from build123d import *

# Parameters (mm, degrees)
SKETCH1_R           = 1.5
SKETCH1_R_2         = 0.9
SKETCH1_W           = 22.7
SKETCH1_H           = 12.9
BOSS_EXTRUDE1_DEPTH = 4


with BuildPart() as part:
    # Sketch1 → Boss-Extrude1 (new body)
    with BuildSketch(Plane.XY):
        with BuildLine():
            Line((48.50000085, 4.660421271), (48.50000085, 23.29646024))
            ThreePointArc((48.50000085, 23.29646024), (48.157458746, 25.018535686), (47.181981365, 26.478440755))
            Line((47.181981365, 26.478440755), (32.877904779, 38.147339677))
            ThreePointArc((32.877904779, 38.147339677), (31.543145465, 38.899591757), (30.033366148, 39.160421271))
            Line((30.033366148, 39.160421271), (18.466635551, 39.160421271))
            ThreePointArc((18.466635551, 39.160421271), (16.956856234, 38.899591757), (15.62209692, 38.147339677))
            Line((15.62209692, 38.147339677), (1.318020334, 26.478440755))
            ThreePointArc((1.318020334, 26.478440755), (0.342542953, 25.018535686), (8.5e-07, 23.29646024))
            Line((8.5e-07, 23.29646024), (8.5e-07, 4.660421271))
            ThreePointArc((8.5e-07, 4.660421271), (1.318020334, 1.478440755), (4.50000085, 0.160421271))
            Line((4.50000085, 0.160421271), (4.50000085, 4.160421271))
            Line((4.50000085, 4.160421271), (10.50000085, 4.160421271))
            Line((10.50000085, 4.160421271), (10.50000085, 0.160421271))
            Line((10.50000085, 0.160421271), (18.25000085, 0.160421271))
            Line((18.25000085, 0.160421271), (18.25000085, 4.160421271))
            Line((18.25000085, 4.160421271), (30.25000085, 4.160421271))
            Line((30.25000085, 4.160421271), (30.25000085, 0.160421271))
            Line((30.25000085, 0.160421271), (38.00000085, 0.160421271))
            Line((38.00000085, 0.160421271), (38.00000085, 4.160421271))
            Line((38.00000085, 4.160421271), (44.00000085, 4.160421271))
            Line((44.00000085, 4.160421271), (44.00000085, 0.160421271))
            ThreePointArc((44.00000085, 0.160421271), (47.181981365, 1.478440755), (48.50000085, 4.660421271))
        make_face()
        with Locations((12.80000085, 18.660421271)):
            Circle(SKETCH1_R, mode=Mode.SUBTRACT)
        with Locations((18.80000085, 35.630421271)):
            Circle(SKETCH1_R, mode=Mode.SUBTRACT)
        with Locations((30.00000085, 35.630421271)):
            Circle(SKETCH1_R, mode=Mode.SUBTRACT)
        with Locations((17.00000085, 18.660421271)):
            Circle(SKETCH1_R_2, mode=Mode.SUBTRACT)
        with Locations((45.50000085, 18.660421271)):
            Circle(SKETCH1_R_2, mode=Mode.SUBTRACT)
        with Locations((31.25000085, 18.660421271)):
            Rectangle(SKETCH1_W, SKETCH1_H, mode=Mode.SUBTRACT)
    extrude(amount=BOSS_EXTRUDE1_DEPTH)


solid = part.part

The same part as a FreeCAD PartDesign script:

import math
import FreeCAD as App
import Part
import Sketcher


def add_polygon(sketch, points):
    """Adds a closed chain of lines whose ends are joined by coincident constraints."""
    first, n = sketch.GeometryCount, len(points)
    for a, b in zip(points, points[1:] + points[:1]):
        sketch.addGeometry(Part.LineSegment(App.Vector(*a, 0), App.Vector(*b, 0)), False)
    for i in range(n):
        sketch.addConstraint(Sketcher.Constraint("Coincident", first + i, 2, first + (i + 1) % n, 1))

doc = App.newDocument("Part")
body = doc.addObject("PartDesign::Body", "Body")

sketch1 = body.newObject("Sketcher::SketchObject", "Sketch")
sketch1.AttachmentSupport = (doc.getObject("XY_Plane"), [""])
sketch1.MapMode = "FlatFace"
sketch1.addGeometry(Part.LineSegment(App.Vector(48.5, 4.7, 0), App.Vector(48.5, 23.3, 0)), False)
sketch1.addGeometry(Part.ArcOfCircle(Part.Circle(App.Vector(44, 23.3, 0), App.Vector(0, 0, 1), 4.5), math.radians(0), math.radians(45)), False)
sketch1.addGeometry(Part.LineSegment(App.Vector(47.2, 26.5, 0), App.Vector(32.9, 38.1, 0)), False)
sketch1.addGeometry(Part.ArcOfCircle(Part.Circle(App.Vector(30, 34.7, 0), App.Vector(0, 0, 1), 4.5), math.radians(51), math.radians(90)), False)
sketch1.addGeometry(Part.LineSegment(App.Vector(30, 39.2, 0), App.Vector(18.5, 39.2, 0)), False)
sketch1.addGeometry(Part.ArcOfCircle(Part.Circle(App.Vector(18.5, 34.7, 0), App.Vector(0, 0, 1), 4.5), math.radians(90), math.radians(129)), False)
sketch1.addGeometry(Part.LineSegment(App.Vector(15.6, 38.1, 0), App.Vector(1.3, 26.5, 0)), False)
sketch1.addGeometry(Part.ArcOfCircle(Part.Circle(App.Vector(4.5, 23.3, 0), App.Vector(0, 0, 1), 4.5), math.radians(135), math.radians(180)), False)
sketch1.addGeometry(Part.LineSegment(App.Vector(0, 23.3, 0), App.Vector(0, 4.7, 0)), False)
sketch1.addGeometry(Part.ArcOfCircle(Part.Circle(App.Vector(4.5, 4.7, 0), App.Vector(0, 0, 1), 4.5), math.radians(180), math.radians(270)), False)
sketch1.addGeometry(Part.LineSegment(App.Vector(4.5, 0.2, 0), App.Vector(4.5, 4.2, 0)), False)
sketch1.addGeometry(Part.LineSegment(App.Vector(4.5, 4.2, 0), App.Vector(10.5, 4.2, 0)), False)
sketch1.addGeometry(Part.LineSegment(App.Vector(10.5, 4.2, 0), App.Vector(10.5, 0.2, 0)), False)
sketch1.addGeometry(Part.LineSegment(App.Vector(10.5, 0.2, 0), App.Vector(18.3, 0.2, 0)), False)
sketch1.addGeometry(Part.LineSegment(App.Vector(18.3, 0.2, 0), App.Vector(18.3, 4.2, 0)), False)
sketch1.addGeometry(Part.LineSegment(App.Vector(18.3, 4.2, 0), App.Vector(30.3, 4.2, 0)), False)
sketch1.addGeometry(Part.LineSegment(App.Vector(30.3, 4.2, 0), App.Vector(30.3, 0.2, 0)), False)
sketch1.addGeometry(Part.LineSegment(App.Vector(30.3, 0.2, 0), App.Vector(38, 0.2, 0)), False)
sketch1.addGeometry(Part.LineSegment(App.Vector(38, 0.2, 0), App.Vector(38, 4.2, 0)), False)
sketch1.addGeometry(Part.LineSegment(App.Vector(38, 4.2, 0), App.Vector(44, 4.2, 0)), False)
sketch1.addGeometry(Part.LineSegment(App.Vector(44, 4.2, 0), App.Vector(44, 0.2, 0)), False)
sketch1.addGeometry(Part.ArcOfCircle(Part.Circle(App.Vector(44, 4.7, 0), App.Vector(0, 0, 1), 4.5), math.radians(-90), math.radians(0)), False)
sketch1.addGeometry(Part.Circle(App.Vector(12.8, 18.7, 0), App.Vector(0, 0, 1), 1.5), False)
sketch1.addGeometry(Part.Circle(App.Vector(17, 18.7, 0), App.Vector(0, 0, 1), 0.9), False)
add_polygon(sketch1, [(42.6, 12.2), (19.9, 12.2), (19.9, 25.1), (42.6, 25.1)])
sketch1.addGeometry(Part.Circle(App.Vector(45.5, 18.7, 0), App.Vector(0, 0, 1), 0.9), False)
sketch1.addGeometry(Part.Circle(App.Vector(18.8, 35.6, 0), App.Vector(0, 0, 1), 1.5), False)
sketch1.addGeometry(Part.Circle(App.Vector(30, 35.6, 0), App.Vector(0, 0, 1), 1.5), False)
sketch1.addConstraint(Sketcher.Constraint("Tangent", 0, 2, 1, 1))
sketch1.addConstraint(Sketcher.Constraint("Coincident", 1, 2, 2, 1))
sketch1.addConstraint(Sketcher.Constraint("Tangent", 2, 2, 3, 1))
sketch1.addConstraint(Sketcher.Constraint("Tangent", 3, 2, 4, 1))
sketch1.addConstraint(Sketcher.Constraint("Tangent", 4, 2, 5, 1))
sketch1.addConstraint(Sketcher.Constraint("Tangent", 5, 2, 6, 1))
sketch1.addConstraint(Sketcher.Constraint("Coincident", 6, 2, 7, 1))
sketch1.addConstraint(Sketcher.Constraint("Tangent", 7, 2, 8, 1))
sketch1.addConstraint(Sketcher.Constraint("Tangent", 8, 2, 9, 1))
sketch1.addConstraint(Sketcher.Constraint("Coincident", 9, 2, 10, 1))
sketch1.addConstraint(Sketcher.Constraint("Coincident", 10, 2, 11, 1))
sketch1.addConstraint(Sketcher.Constraint("Coincident", 11, 2, 12, 1))
sketch1.addConstraint(Sketcher.Constraint("Coincident", 12, 2, 13, 1))
sketch1.addConstraint(Sketcher.Constraint("Coincident", 13, 2, 14, 1))
sketch1.addConstraint(Sketcher.Constraint("Coincident", 14, 2, 15, 1))
sketch1.addConstraint(Sketcher.Constraint("Coincident", 15, 2, 16, 1))
sketch1.addConstraint(Sketcher.Constraint("Coincident", 16, 2, 17, 1))
sketch1.addConstraint(Sketcher.Constraint("Coincident", 17, 2, 18, 1))
sketch1.addConstraint(Sketcher.Constraint("Coincident", 18, 2, 19, 1))
sketch1.addConstraint(Sketcher.Constraint("Coincident", 19, 2, 20, 1))
sketch1.addConstraint(Sketcher.Constraint("Coincident", 20, 2, 21, 1))
sketch1.addConstraint(Sketcher.Constraint("Tangent", 21, 2, 0, 1))
sketch1.addConstraint(Sketcher.Constraint("Vertical", 0))
sketch1.addConstraint(Sketcher.Constraint("Horizontal", 4))
sketch1.addConstraint(Sketcher.Constraint("Vertical", 8))
sketch1.addConstraint(Sketcher.Constraint("Vertical", 10))
sketch1.addConstraint(Sketcher.Constraint("Horizontal", 11))
sketch1.addConstraint(Sketcher.Constraint("Vertical", 12))
sketch1.addConstraint(Sketcher.Constraint("Horizontal", 13))
sketch1.addConstraint(Sketcher.Constraint("Vertical", 14))
sketch1.addConstraint(Sketcher.Constraint("Horizontal", 15))
sketch1.addConstraint(Sketcher.Constraint("Vertical", 16))
sketch1.addConstraint(Sketcher.Constraint("Horizontal", 17))
sketch1.addConstraint(Sketcher.Constraint("Vertical", 18))
sketch1.addConstraint(Sketcher.Constraint("Horizontal", 19))
sketch1.addConstraint(Sketcher.Constraint("Vertical", 20))
sketch1.addConstraint(Sketcher.Constraint("Horizontal", 24))
sketch1.addConstraint(Sketcher.Constraint("Vertical", 25))
sketch1.addConstraint(Sketcher.Constraint("Horizontal", 26))
sketch1.addConstraint(Sketcher.Constraint("Vertical", 27))
sketch1.addConstraint(Sketcher.Constraint("Equal", 1, 3))
sketch1.addConstraint(Sketcher.Constraint("Equal", 3, 5))
sketch1.addConstraint(Sketcher.Constraint("Equal", 5, 7))
sketch1.addConstraint(Sketcher.Constraint("Equal", 7, 9))
sketch1.addConstraint(Sketcher.Constraint("Equal", 9, 21))
sketch1.addConstraint(Sketcher.Constraint("Equal", 23, 28))
sketch1.addConstraint(Sketcher.Constraint("Equal", 22, 29))
sketch1.addConstraint(Sketcher.Constraint("Equal", 29, 30))
sketch1.addConstraint(Sketcher.Constraint("PointOnObject", 7, 2, -2))
sketch1.addConstraint(Sketcher.Constraint("Horizontal", 1, 3, 7, 3))
sketch1.addConstraint(Sketcher.Constraint("Horizontal", 9, 3, 21, 3))
sketch1.addConstraint(Sketcher.Constraint("Horizontal", 22, 3, 23, 3))
sketch1.addConstraint(Sketcher.Constraint("Horizontal", 23, 3, 28, 3))
sketch1.addConstraint(Sketcher.Constraint("Horizontal", 29, 3, 30, 3))
sketch1.addConstraint(Sketcher.Constraint("Horizontal", 2, 2, 5, 2))
sketch1.addConstraint(Sketcher.Constraint("Horizontal", 1, 2, 6, 2))
sketch1.addConstraint(Sketcher.Constraint("Horizontal", 9, 2, 12, 2))
sketch1.addConstraint(Sketcher.Constraint("Horizontal", 11, 2, 14, 2))
sketch1.addConstraint(Sketcher.Constraint("Horizontal", 13, 2, 16, 2))
sketch1.addConstraint(Sketcher.Constraint("Horizontal", 15, 2, 18, 2))
sketch1.addConstraint(Sketcher.Constraint("Vertical", 7, 3, 9, 2))
sketch1.addConstraint(Sketcher.Constraint("Vertical", 21, 3, 19, 2))
sketch1.addConstraint(Sketcher.Constraint("Equal", 13, 17))
sketch1.addConstraint(Sketcher.Constraint("Equal", 11, 19))
sketch1.addConstraint(Sketcher.Constraint("Diameter", 22, 3.0))
sketch1.addConstraint(Sketcher.Constraint("Diameter", 23, 1.8))
sketch1.addConstraint(Sketcher.Constraint("Radius", 1, 4.5))
sketch1.addConstraint(Sketcher.Constraint("DistanceX", 11, 1, 11, 2, 6.0))
sketch1.addConstraint(Sketcher.Constraint("DistanceX", 15, 1, 15, 2, 12.0))
sketch1.addConstraint(Sketcher.Constraint("DistanceY", 10, 1, 10, 2, 4.0))
sketch1.addConstraint(Sketcher.Constraint("DistanceX", 24, 2, 24, 1, 22.7))
sketch1.addConstraint(Sketcher.Constraint("DistanceY", 25, 1, 25, 2, 12.9))
sketch1.addConstraint(Sketcher.Constraint("DistanceX", -1, 1, 1, 3, 44.000001))
sketch1.addConstraint(Sketcher.Constraint("DistanceX", -1, 1, 23, 3, 17.000001))
sketch1.addConstraint(Sketcher.Constraint("DistanceX", -1, 1, 30, 3, 30.000001))
sketch1.addConstraint(Sketcher.Constraint("DistanceY", 9, 3, 5, 3, 30.0))
sketch1.addConstraint(Sketcher.Constraint("DistanceY", 9, 3, 22, 3, 14.0))
sketch1.addConstraint(Sketcher.Constraint("DistanceX", 22, 3, 29, 3, 6.0))
sketch1.addConstraint(Sketcher.Constraint("DistanceX", 28, 3, 0, 2, 3.0))
sketch1.addConstraint(Sketcher.Constraint("DistanceX", -1, 1, 22, 3, 12.800001))
sketch1.addConstraint(Sketcher.Constraint("DistanceX", -1, 1, 24, 2, 19.900001))
sketch1.addConstraint(Sketcher.Constraint("DistanceY", 5, 3, 29, 3, 0.97))
sketch1.addConstraint(Sketcher.Constraint("DistanceY", 24, 2, 23, 3, 6.45))
sketch1.addConstraint(Sketcher.Constraint("DistanceX", 4, 2, 4, 1, 11.566731))
sketch1.addConstraint(Sketcher.Constraint("DistanceY", 0, 1, 0, 2, 18.636039))
sketch1.addConstraint(Sketcher.Constraint("DistanceY", 1, 2, 2, 2, 11.668899))
sketch1.addConstraint(Sketcher.Constraint("DistanceY", -1, 1, 1, 3, 23.29646))
pad1 = body.newObject("PartDesign::Pad", "Pad")
pad1.Profile = sketch1
pad1.Length = 4

doc.recompute()
